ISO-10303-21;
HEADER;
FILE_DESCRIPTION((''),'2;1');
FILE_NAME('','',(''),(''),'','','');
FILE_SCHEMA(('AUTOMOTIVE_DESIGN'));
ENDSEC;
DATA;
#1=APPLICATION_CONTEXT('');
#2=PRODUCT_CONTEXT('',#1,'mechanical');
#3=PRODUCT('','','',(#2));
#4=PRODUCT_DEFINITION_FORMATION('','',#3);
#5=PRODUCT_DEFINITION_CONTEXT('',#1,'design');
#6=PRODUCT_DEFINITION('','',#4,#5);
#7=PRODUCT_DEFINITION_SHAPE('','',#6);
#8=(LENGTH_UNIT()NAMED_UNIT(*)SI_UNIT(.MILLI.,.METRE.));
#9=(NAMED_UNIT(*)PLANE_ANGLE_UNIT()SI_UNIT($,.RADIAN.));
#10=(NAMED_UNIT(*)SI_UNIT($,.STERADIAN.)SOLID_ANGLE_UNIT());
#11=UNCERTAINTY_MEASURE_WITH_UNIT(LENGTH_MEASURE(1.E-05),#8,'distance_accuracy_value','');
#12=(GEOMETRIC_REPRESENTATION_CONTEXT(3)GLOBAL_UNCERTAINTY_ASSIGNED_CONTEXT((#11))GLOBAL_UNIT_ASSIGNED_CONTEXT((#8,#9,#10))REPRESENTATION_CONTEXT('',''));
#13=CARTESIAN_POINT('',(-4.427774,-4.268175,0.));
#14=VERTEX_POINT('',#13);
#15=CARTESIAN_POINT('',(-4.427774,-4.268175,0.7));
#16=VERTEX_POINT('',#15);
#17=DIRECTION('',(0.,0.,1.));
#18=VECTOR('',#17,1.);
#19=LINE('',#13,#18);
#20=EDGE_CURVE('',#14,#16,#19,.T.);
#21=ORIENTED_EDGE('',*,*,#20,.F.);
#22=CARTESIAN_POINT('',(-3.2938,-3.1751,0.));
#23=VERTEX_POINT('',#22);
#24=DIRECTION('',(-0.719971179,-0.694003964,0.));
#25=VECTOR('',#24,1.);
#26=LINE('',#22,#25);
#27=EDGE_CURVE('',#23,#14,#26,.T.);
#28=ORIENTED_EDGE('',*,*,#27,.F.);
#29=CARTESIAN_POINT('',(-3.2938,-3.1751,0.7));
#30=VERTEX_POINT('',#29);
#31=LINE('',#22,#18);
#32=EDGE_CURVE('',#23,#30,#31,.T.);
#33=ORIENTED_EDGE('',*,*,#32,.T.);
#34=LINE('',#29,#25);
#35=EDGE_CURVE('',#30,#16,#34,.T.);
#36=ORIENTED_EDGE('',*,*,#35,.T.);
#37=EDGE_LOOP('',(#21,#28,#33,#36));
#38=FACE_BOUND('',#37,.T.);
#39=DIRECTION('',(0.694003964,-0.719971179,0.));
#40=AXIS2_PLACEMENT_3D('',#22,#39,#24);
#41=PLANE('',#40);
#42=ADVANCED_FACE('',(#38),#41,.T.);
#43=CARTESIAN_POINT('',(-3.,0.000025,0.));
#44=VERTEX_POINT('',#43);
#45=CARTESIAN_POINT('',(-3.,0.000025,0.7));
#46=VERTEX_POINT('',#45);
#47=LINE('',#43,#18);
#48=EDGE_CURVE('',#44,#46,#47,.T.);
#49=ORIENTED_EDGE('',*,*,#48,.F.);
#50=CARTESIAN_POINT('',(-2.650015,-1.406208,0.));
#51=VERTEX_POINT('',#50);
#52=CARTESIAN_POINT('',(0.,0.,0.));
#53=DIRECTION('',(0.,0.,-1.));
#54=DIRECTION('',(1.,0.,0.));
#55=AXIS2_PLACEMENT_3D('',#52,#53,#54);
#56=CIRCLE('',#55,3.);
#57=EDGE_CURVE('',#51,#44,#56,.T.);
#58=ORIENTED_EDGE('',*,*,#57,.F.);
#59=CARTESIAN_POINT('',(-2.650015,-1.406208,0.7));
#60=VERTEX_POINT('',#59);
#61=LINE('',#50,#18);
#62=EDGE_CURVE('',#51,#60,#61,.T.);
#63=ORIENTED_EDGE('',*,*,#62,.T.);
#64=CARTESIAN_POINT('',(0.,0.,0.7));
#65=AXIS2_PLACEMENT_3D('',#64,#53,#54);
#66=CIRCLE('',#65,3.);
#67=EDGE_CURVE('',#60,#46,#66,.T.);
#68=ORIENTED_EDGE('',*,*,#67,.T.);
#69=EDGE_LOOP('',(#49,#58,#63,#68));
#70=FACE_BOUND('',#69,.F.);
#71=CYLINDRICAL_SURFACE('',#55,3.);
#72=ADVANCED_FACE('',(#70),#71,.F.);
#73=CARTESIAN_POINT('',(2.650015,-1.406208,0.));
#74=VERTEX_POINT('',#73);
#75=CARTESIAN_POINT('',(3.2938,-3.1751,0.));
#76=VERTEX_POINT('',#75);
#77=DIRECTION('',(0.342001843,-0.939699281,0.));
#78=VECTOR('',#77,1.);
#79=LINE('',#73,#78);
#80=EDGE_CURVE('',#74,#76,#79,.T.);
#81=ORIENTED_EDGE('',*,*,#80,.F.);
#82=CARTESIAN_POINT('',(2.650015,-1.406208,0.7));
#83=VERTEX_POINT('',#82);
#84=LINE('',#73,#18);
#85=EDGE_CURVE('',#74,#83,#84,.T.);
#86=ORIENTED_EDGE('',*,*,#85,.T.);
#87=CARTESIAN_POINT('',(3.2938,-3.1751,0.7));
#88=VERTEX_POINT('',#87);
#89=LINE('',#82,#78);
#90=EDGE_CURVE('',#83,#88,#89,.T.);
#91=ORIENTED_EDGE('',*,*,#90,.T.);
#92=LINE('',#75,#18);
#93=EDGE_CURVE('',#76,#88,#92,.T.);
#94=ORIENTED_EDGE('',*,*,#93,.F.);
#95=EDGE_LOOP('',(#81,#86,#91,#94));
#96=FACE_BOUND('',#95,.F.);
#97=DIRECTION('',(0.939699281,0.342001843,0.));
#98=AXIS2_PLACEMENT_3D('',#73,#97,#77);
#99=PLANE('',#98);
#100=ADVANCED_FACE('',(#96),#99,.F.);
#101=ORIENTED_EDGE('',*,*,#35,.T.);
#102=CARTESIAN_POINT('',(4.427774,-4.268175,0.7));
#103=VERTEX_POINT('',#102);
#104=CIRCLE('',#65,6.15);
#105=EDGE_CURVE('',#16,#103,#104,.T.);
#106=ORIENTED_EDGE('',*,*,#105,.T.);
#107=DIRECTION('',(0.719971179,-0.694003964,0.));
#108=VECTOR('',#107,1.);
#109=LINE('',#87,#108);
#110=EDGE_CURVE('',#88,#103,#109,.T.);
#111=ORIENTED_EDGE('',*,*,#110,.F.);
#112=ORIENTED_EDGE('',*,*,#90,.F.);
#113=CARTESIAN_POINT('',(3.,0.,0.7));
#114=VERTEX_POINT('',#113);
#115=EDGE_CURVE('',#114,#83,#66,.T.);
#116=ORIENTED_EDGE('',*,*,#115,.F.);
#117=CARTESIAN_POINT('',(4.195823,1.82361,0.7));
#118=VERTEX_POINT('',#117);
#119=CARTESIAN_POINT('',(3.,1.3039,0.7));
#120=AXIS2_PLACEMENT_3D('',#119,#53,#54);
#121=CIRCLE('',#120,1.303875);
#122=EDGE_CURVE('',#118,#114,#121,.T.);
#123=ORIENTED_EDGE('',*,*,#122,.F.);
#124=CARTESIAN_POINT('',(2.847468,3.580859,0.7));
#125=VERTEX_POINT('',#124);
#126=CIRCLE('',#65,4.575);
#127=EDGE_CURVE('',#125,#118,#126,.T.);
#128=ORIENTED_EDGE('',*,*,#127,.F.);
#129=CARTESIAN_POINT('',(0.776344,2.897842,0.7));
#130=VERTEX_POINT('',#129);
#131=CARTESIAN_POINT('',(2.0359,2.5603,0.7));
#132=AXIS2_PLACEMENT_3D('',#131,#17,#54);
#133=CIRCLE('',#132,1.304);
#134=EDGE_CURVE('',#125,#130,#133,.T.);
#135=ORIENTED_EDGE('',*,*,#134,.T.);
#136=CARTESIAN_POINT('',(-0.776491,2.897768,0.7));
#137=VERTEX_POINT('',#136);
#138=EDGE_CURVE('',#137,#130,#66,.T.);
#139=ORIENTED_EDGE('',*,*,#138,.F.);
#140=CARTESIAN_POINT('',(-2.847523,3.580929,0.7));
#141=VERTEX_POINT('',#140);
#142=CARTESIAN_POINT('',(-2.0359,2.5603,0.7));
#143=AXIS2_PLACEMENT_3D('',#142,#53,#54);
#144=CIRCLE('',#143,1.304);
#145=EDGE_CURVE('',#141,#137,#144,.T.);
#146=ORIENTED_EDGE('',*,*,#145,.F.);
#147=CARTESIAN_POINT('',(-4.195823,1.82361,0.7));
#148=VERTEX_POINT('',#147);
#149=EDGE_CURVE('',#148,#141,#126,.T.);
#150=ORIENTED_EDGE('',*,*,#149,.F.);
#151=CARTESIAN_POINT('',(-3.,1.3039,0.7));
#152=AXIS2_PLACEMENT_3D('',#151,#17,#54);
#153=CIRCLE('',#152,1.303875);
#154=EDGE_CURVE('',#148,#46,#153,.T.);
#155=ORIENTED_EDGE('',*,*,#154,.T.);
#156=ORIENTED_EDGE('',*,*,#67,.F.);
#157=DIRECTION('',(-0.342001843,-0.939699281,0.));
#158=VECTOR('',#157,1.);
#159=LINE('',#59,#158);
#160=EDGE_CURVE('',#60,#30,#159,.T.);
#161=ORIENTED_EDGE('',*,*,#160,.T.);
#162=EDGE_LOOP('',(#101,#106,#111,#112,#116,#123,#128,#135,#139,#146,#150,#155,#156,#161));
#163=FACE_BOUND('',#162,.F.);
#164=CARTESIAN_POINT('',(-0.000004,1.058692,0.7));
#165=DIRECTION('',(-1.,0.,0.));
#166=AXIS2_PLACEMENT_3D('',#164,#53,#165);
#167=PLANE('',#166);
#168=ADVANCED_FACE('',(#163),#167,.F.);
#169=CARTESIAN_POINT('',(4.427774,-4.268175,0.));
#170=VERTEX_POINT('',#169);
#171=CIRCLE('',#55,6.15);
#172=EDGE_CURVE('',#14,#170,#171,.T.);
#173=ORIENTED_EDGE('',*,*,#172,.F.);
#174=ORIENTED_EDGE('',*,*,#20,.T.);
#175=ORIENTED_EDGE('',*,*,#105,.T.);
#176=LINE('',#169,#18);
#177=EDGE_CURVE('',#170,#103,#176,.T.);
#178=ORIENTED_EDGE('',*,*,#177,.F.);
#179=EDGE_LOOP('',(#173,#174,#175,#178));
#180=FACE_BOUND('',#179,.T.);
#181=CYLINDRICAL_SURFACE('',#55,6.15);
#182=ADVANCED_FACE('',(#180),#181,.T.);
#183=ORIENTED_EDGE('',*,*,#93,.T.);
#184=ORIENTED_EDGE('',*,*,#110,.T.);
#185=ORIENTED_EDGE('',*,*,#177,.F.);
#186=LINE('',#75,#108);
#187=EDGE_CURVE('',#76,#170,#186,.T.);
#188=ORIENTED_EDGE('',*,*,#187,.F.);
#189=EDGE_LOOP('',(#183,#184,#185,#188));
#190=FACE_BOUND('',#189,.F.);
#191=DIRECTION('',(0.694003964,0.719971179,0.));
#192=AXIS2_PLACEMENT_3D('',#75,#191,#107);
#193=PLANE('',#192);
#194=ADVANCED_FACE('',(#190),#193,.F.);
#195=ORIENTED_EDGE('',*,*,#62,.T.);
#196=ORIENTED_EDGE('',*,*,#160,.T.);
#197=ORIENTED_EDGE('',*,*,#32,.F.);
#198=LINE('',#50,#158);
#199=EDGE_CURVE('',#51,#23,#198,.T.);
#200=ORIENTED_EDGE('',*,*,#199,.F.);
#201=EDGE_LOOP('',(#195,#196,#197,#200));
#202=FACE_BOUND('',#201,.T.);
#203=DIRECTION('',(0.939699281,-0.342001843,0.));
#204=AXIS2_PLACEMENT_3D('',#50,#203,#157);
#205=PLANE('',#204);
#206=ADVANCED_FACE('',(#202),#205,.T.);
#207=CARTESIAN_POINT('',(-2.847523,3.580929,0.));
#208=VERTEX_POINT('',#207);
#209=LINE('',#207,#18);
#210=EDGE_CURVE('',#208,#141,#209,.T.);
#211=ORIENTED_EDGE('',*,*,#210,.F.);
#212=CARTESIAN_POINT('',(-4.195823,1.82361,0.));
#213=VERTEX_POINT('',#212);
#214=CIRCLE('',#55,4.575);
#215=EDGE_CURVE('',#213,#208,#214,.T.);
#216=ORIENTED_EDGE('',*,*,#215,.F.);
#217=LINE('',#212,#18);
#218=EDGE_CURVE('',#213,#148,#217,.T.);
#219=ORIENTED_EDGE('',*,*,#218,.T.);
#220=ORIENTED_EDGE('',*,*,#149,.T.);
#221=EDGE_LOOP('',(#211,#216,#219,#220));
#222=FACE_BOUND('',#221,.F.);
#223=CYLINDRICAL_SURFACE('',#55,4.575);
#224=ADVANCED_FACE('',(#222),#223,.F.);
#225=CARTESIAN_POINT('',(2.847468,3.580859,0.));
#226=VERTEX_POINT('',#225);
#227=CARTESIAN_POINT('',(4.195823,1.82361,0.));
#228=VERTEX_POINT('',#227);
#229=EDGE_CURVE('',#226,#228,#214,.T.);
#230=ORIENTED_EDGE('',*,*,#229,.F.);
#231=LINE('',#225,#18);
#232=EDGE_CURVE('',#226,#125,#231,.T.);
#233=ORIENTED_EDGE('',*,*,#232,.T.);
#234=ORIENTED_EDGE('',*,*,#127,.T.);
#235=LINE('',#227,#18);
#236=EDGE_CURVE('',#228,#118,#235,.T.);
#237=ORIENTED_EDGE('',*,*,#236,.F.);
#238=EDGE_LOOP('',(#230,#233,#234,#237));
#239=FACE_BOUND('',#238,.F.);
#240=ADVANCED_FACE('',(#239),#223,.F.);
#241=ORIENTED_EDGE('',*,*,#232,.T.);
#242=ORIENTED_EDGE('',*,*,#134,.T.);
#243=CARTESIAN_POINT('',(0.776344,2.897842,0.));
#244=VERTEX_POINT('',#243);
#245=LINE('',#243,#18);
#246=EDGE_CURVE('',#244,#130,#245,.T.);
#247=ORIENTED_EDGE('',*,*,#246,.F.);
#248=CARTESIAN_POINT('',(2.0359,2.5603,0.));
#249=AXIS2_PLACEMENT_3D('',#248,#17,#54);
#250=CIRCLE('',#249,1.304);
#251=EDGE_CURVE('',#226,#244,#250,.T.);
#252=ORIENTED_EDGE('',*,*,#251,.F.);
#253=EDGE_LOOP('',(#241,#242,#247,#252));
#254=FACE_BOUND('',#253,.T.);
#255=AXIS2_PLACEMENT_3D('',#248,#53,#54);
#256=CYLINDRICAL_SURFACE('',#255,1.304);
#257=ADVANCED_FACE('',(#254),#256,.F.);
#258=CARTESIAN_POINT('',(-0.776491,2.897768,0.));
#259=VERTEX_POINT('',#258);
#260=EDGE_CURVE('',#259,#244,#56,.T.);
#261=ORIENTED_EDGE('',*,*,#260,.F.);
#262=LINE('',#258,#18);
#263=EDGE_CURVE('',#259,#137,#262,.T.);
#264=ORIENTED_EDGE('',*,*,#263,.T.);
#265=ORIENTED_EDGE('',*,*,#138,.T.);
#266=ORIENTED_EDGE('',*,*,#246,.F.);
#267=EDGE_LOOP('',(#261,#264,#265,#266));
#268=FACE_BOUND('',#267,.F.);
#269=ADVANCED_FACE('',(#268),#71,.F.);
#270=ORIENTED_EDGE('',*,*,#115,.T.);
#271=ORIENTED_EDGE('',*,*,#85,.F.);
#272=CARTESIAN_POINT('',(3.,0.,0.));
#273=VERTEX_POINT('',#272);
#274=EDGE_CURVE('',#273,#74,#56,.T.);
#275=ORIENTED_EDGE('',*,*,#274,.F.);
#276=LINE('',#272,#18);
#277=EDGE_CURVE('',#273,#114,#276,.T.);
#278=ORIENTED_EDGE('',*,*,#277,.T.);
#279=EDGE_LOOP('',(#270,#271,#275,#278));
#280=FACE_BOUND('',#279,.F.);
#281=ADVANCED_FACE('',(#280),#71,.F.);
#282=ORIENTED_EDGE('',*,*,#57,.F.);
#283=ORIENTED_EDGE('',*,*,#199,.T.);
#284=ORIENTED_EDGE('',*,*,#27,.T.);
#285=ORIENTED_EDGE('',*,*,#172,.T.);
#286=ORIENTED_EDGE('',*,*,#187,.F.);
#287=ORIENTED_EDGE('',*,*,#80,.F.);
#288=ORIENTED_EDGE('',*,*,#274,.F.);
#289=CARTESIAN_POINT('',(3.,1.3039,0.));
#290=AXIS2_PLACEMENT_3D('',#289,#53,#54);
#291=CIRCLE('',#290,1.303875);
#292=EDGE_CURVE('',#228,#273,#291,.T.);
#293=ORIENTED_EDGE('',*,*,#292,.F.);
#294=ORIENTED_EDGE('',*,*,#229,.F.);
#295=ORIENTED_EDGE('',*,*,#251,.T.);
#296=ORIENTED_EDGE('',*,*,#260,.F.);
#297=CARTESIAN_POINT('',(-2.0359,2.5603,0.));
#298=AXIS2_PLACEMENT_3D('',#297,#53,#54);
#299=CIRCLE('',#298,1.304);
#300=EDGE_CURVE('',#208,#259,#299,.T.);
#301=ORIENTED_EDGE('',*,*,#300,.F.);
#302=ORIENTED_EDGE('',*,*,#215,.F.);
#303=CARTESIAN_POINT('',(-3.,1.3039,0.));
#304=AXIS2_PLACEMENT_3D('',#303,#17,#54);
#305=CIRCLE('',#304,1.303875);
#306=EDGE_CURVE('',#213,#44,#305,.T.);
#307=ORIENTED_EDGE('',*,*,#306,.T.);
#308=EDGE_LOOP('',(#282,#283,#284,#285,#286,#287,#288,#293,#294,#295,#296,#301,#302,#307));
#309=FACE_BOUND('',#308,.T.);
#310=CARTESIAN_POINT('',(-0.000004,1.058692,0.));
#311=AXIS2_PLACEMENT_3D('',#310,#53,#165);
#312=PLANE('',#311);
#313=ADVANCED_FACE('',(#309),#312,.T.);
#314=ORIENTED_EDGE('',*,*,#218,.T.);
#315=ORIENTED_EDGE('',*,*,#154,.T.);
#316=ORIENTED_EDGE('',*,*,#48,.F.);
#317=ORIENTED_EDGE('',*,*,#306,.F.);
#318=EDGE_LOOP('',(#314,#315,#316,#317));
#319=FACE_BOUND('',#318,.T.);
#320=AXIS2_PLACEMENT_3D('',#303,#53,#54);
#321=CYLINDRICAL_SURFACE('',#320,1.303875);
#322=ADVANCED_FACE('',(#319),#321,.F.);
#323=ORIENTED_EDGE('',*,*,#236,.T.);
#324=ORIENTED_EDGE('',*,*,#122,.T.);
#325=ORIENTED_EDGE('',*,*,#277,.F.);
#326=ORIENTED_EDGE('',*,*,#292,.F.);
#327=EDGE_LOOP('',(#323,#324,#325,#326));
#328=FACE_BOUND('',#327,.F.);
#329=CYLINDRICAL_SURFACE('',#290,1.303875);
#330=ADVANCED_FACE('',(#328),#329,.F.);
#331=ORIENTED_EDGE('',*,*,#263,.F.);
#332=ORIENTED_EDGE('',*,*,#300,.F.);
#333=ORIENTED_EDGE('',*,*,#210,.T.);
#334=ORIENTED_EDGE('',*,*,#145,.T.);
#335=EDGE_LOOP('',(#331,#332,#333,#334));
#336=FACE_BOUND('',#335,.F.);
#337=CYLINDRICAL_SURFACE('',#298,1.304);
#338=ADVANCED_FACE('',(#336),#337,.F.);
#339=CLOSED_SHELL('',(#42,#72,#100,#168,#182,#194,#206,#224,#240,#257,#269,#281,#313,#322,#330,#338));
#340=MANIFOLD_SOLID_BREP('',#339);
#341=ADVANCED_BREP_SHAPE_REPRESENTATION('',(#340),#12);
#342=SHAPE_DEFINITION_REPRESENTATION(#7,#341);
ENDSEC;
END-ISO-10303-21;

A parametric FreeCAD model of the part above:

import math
import FreeCAD as App
import Part
import Sketcher
Q = App.Units.Quantity

doc = App.newDocument("Part")
body = doc.addObject("PartDesign::Body", "Body")

sketch1 = body.newObject("Sketcher::SketchObject", "Sketch")
sketch1.AttachmentSupport = (doc.getObject("XY_Plane"), [""])
sketch1.MapMode = "FlatFace"
sketch1.addGeometry(Part.ArcOfCircle(Part.Circle(App.Vector(-3, 1.3039, 0), App.Vector(0, 0, 1), 1.30385), math.radians(156.51002), math.radians(270)), False)
sketch1.addGeometry(Part.ArcOfCircle(Part.Circle(App.Vector(0.001351, -0.000795, 0), App.Vector(0, 0, 1), 4.576515), math.radians(128.498446), math.radians(156.506632)), False)
sketch1.addGeometry(Part.ArcOfCircle(Part.Circle(App.Vector(-2.0359, 2.5603, 0), App.Vector(0, 0, 1), 1.303963), math.radians(15.001901), math.radians(128.49237)), False)
sketch1.addGeometry(Part.ArcOfCircle(Part.Circle(App.Vector(0, 0, 0), App.Vector(0, 0, 1), 3.000033), math.radians(74.999321), math.radians(105.000679)), False)
sketch1.addGeometry(Part.ArcOfCircle(Part.Circle(App.Vector(2.0359, 2.5603, 0), App.Vector(0, 0, 1), 1.303963), math.radians(51.50763), math.radians(164.998099)), False)
sketch1.addGeometry(Part.ArcOfCircle(Part.Circle(App.Vector(0.001117, 0.001098, 0), App.Vector(0, 0, 1), 4.573497), math.radians(23.483939), math.radians(51.510983)), False)
sketch1.addGeometry(Part.ArcOfCircle(Part.Circle(App.Vector(3, 1.3039, 0), App.Vector(0, 0, 1), 1.30385), math.radians(-90), math.radians(23.48998)), False)
sketch1.addGeometry(Part.ArcOfCircle(Part.Circle(App.Vector(0, 0, 0), App.Vector(0, 0, 1), 2.999983), math.radians(-27.952277), math.radians(0)), False)
sketch1.addGeometry(Part.LineSegment(App.Vector(2.65, -1.4062, 0), App.Vector(3.2938, -3.1751, 0)), False)
sketch1.addGeometry(Part.LineSegment(App.Vector(3.2938, -3.1751, 0), App.Vector(4.4278, -4.2682, 0)), False)
sketch1.addGeometry(Part.ArcOfCircle(Part.Circle(App.Vector(0, 0, 0), App.Vector(0, 0, 1), 6.150036), math.radians(-43.948553), math.radians(223.948553)), False)
sketch1.addGeometry(Part.LineSegment(App.Vector(-4.4278, -4.2682, 0), App.Vector(-3.2938, -3.1751, 0)), False)
sketch1.addGeometry(Part.LineSegment(App.Vector(-3.2938, -3.1751, 0), App.Vector(-2.65, -1.4062, 0)), False)
sketch1.addGeometry(Part.ArcOfCircle(Part.Circle(App.Vector(0, 0, 0), App.Vector(0, 0, 1), 3.000033), math.radians(180), math.radians(207.952277)), False)
sketch1.addConstraint(Sketcher.Constraint("Coincident", 0, 1, 1, 2))
sketch1.addConstraint(Sketcher.Constraint("Coincident", 1, 1, 2, 2))
sketch1.addConstraint(Sketcher.Constraint("Coincident", 2, 1, 3, 2))
sketch1.addConstraint(Sketcher.Constraint("Coincident", 3, 1, 4, 2))
sketch1.addConstraint(Sketcher.Constraint("Coincident", 4, 1, 5, 2))
sketch1.addConstraint(Sketcher.Constraint("Coincident", 5, 1, 6, 2))
sketch1.addConstraint(Sketcher.Constraint("Coincident", 6, 1, 7, 2))
sketch1.addConstraint(Sketcher.Constraint("Coincident", 7, 1, 8, 1))
sketch1.addConstraint(Sketcher.Constraint("Coincident", 8, 2, 9, 1))
sketch1.addConstraint(Sketcher.Constraint("Coincident", 9, 2, 10, 1))
sketch1.addConstraint(Sketcher.Constraint("Coincident", 10, 2, 11, 1))
sketch1.addConstraint(Sketcher.Constraint("Coincident", 11, 2, 12, 1))
sketch1.addConstraint(Sketcher.Constraint("Coincident", 12, 2, 13, 2))
sketch1.addConstraint(Sketcher.Constraint("Coincident", 13, 1, 0, 2))
sketch1.addConstraint(Sketcher.Constraint("Coincident", 3, 3, -1, 1))
sketch1.addConstraint(Sketcher.Constraint("Coincident", 7, 3, -1, 1))
sketch1.addConstraint(Sketcher.Constraint("Coincident", 10, 3, -1, 1))
sketch1.addConstraint(Sketcher.Constraint("Coincident", 13, 3, -1, 1))
sketch1.addConstraint(Sketcher.Constraint("PointOnObject", 6, 1, -1))
sketch1.addConstraint(Sketcher.Constraint("PointOnObject", 13, 1, -1))
sketch1.addConstraint(Sketcher.Constraint("Radius", 3, Q("3 mm")))
sketch1.addConstraint(Sketcher.Constraint("Radius", 7, Q("3 mm")))
sketch1.addConstraint(Sketcher.Constraint("Radius", 13, Q("3 mm")))
sketch1.addConstraint(Sketcher.Constraint("Radius", 10, Q("6.15 mm")))
sketch1.addConstraint(Sketcher.Constraint("DistanceX", 0, 3, -1, 1, Q("3 mm")))
sketch1.addConstraint(Sketcher.Constraint("DistanceX", -1, 1, 6, 3, Q("3 mm")))
sketch1.addConstraint(Sketcher.Constraint("Radius", 2, Q("1.304 mm")))
sketch1.addConstraint(Sketcher.Constraint("Radius", 4, Q("1.304 mm")))
sketch1.addConstraint(Sketcher.Constraint("Radius", 0, Q("1.3039 mm")))
sketch1.addConstraint(Sketcher.Constraint("Radius", 1, Q("4.5765 mm")))
sketch1.addConstraint(Sketcher.Constraint("Radius", 5, Q("4.5735 mm")))
sketch1.addConstraint(Sketcher.Constraint("Radius", 6, Q("1.3039 mm")))
sketch1.addConstraint(Sketcher.Constraint("DistanceX", -1, 1, 7, 1, Q("2.65 mm")))
sketch1.addConstraint(Sketcher.Constraint("DistanceX", 12, 2, -1, 1, Q("2.65 mm")))
sketch1.addConstraint(Sketcher.Constraint("DistanceX", 0, 1, 2, 3, Q("2.16 mm")))
sketch1.addConstraint(Sketcher.Constraint("DistanceX", 4, 3, 5, 1, Q("2.16 mm")))
sketch1.addConstraint(Sketcher.Constraint("Distance", 9, Q("1.575 mm")))
sketch1.addConstraint(Sketcher.Constraint("Distance", 11, Q("1.575 mm")))
sketch1.addConstraint(Sketcher.Constraint("DistanceX", 2, 3, -1, 1, Q("2.036 mm")))
sketch1.addConstraint(Sketcher.Constraint("DistanceX", -1, 1, 4, 3, Q("2.036 mm")))
sketch1.addConstraint(Sketcher.Constraint("DistanceX", -1, 1, 5, 3, Q("0.001 mm")))
sketch1.addConstraint(Sketcher.Constraint("DistanceY", -1, 1, 1, 1, Q("3.581 mm")))
sketch1.addConstraint(Sketcher.Constraint("DistanceY", -1, 1, 4, 1, Q("3.581 mm")))
sketch1.addConstraint(Sketcher.Constraint("DistanceY", 8, 2, -1, 1, Q("3.175 mm")))
sketch1.addConstraint(Sketcher.Constraint("DistanceY", 11, 2, -1, 1, Q("3.175 mm")))
sketch1.addConstraint(Sketcher.Constraint("DistanceY", 1, 3, 2, 3, Q("2.561 mm")))
sketch1.addConstraint(Sketcher.Constraint("DistanceX", 8, 2, 9, 2, Q("1.134 mm")))
sketch1.addConstraint(Sketcher.Constraint("DistanceY", 10, 2, 0, 3, Q("5.572 mm")))
pad1 = body.newObject("PartDesign::Pad", "Pad")
pad1.Profile = sketch1
pad1.Length = 0.7

doc.recompute()
